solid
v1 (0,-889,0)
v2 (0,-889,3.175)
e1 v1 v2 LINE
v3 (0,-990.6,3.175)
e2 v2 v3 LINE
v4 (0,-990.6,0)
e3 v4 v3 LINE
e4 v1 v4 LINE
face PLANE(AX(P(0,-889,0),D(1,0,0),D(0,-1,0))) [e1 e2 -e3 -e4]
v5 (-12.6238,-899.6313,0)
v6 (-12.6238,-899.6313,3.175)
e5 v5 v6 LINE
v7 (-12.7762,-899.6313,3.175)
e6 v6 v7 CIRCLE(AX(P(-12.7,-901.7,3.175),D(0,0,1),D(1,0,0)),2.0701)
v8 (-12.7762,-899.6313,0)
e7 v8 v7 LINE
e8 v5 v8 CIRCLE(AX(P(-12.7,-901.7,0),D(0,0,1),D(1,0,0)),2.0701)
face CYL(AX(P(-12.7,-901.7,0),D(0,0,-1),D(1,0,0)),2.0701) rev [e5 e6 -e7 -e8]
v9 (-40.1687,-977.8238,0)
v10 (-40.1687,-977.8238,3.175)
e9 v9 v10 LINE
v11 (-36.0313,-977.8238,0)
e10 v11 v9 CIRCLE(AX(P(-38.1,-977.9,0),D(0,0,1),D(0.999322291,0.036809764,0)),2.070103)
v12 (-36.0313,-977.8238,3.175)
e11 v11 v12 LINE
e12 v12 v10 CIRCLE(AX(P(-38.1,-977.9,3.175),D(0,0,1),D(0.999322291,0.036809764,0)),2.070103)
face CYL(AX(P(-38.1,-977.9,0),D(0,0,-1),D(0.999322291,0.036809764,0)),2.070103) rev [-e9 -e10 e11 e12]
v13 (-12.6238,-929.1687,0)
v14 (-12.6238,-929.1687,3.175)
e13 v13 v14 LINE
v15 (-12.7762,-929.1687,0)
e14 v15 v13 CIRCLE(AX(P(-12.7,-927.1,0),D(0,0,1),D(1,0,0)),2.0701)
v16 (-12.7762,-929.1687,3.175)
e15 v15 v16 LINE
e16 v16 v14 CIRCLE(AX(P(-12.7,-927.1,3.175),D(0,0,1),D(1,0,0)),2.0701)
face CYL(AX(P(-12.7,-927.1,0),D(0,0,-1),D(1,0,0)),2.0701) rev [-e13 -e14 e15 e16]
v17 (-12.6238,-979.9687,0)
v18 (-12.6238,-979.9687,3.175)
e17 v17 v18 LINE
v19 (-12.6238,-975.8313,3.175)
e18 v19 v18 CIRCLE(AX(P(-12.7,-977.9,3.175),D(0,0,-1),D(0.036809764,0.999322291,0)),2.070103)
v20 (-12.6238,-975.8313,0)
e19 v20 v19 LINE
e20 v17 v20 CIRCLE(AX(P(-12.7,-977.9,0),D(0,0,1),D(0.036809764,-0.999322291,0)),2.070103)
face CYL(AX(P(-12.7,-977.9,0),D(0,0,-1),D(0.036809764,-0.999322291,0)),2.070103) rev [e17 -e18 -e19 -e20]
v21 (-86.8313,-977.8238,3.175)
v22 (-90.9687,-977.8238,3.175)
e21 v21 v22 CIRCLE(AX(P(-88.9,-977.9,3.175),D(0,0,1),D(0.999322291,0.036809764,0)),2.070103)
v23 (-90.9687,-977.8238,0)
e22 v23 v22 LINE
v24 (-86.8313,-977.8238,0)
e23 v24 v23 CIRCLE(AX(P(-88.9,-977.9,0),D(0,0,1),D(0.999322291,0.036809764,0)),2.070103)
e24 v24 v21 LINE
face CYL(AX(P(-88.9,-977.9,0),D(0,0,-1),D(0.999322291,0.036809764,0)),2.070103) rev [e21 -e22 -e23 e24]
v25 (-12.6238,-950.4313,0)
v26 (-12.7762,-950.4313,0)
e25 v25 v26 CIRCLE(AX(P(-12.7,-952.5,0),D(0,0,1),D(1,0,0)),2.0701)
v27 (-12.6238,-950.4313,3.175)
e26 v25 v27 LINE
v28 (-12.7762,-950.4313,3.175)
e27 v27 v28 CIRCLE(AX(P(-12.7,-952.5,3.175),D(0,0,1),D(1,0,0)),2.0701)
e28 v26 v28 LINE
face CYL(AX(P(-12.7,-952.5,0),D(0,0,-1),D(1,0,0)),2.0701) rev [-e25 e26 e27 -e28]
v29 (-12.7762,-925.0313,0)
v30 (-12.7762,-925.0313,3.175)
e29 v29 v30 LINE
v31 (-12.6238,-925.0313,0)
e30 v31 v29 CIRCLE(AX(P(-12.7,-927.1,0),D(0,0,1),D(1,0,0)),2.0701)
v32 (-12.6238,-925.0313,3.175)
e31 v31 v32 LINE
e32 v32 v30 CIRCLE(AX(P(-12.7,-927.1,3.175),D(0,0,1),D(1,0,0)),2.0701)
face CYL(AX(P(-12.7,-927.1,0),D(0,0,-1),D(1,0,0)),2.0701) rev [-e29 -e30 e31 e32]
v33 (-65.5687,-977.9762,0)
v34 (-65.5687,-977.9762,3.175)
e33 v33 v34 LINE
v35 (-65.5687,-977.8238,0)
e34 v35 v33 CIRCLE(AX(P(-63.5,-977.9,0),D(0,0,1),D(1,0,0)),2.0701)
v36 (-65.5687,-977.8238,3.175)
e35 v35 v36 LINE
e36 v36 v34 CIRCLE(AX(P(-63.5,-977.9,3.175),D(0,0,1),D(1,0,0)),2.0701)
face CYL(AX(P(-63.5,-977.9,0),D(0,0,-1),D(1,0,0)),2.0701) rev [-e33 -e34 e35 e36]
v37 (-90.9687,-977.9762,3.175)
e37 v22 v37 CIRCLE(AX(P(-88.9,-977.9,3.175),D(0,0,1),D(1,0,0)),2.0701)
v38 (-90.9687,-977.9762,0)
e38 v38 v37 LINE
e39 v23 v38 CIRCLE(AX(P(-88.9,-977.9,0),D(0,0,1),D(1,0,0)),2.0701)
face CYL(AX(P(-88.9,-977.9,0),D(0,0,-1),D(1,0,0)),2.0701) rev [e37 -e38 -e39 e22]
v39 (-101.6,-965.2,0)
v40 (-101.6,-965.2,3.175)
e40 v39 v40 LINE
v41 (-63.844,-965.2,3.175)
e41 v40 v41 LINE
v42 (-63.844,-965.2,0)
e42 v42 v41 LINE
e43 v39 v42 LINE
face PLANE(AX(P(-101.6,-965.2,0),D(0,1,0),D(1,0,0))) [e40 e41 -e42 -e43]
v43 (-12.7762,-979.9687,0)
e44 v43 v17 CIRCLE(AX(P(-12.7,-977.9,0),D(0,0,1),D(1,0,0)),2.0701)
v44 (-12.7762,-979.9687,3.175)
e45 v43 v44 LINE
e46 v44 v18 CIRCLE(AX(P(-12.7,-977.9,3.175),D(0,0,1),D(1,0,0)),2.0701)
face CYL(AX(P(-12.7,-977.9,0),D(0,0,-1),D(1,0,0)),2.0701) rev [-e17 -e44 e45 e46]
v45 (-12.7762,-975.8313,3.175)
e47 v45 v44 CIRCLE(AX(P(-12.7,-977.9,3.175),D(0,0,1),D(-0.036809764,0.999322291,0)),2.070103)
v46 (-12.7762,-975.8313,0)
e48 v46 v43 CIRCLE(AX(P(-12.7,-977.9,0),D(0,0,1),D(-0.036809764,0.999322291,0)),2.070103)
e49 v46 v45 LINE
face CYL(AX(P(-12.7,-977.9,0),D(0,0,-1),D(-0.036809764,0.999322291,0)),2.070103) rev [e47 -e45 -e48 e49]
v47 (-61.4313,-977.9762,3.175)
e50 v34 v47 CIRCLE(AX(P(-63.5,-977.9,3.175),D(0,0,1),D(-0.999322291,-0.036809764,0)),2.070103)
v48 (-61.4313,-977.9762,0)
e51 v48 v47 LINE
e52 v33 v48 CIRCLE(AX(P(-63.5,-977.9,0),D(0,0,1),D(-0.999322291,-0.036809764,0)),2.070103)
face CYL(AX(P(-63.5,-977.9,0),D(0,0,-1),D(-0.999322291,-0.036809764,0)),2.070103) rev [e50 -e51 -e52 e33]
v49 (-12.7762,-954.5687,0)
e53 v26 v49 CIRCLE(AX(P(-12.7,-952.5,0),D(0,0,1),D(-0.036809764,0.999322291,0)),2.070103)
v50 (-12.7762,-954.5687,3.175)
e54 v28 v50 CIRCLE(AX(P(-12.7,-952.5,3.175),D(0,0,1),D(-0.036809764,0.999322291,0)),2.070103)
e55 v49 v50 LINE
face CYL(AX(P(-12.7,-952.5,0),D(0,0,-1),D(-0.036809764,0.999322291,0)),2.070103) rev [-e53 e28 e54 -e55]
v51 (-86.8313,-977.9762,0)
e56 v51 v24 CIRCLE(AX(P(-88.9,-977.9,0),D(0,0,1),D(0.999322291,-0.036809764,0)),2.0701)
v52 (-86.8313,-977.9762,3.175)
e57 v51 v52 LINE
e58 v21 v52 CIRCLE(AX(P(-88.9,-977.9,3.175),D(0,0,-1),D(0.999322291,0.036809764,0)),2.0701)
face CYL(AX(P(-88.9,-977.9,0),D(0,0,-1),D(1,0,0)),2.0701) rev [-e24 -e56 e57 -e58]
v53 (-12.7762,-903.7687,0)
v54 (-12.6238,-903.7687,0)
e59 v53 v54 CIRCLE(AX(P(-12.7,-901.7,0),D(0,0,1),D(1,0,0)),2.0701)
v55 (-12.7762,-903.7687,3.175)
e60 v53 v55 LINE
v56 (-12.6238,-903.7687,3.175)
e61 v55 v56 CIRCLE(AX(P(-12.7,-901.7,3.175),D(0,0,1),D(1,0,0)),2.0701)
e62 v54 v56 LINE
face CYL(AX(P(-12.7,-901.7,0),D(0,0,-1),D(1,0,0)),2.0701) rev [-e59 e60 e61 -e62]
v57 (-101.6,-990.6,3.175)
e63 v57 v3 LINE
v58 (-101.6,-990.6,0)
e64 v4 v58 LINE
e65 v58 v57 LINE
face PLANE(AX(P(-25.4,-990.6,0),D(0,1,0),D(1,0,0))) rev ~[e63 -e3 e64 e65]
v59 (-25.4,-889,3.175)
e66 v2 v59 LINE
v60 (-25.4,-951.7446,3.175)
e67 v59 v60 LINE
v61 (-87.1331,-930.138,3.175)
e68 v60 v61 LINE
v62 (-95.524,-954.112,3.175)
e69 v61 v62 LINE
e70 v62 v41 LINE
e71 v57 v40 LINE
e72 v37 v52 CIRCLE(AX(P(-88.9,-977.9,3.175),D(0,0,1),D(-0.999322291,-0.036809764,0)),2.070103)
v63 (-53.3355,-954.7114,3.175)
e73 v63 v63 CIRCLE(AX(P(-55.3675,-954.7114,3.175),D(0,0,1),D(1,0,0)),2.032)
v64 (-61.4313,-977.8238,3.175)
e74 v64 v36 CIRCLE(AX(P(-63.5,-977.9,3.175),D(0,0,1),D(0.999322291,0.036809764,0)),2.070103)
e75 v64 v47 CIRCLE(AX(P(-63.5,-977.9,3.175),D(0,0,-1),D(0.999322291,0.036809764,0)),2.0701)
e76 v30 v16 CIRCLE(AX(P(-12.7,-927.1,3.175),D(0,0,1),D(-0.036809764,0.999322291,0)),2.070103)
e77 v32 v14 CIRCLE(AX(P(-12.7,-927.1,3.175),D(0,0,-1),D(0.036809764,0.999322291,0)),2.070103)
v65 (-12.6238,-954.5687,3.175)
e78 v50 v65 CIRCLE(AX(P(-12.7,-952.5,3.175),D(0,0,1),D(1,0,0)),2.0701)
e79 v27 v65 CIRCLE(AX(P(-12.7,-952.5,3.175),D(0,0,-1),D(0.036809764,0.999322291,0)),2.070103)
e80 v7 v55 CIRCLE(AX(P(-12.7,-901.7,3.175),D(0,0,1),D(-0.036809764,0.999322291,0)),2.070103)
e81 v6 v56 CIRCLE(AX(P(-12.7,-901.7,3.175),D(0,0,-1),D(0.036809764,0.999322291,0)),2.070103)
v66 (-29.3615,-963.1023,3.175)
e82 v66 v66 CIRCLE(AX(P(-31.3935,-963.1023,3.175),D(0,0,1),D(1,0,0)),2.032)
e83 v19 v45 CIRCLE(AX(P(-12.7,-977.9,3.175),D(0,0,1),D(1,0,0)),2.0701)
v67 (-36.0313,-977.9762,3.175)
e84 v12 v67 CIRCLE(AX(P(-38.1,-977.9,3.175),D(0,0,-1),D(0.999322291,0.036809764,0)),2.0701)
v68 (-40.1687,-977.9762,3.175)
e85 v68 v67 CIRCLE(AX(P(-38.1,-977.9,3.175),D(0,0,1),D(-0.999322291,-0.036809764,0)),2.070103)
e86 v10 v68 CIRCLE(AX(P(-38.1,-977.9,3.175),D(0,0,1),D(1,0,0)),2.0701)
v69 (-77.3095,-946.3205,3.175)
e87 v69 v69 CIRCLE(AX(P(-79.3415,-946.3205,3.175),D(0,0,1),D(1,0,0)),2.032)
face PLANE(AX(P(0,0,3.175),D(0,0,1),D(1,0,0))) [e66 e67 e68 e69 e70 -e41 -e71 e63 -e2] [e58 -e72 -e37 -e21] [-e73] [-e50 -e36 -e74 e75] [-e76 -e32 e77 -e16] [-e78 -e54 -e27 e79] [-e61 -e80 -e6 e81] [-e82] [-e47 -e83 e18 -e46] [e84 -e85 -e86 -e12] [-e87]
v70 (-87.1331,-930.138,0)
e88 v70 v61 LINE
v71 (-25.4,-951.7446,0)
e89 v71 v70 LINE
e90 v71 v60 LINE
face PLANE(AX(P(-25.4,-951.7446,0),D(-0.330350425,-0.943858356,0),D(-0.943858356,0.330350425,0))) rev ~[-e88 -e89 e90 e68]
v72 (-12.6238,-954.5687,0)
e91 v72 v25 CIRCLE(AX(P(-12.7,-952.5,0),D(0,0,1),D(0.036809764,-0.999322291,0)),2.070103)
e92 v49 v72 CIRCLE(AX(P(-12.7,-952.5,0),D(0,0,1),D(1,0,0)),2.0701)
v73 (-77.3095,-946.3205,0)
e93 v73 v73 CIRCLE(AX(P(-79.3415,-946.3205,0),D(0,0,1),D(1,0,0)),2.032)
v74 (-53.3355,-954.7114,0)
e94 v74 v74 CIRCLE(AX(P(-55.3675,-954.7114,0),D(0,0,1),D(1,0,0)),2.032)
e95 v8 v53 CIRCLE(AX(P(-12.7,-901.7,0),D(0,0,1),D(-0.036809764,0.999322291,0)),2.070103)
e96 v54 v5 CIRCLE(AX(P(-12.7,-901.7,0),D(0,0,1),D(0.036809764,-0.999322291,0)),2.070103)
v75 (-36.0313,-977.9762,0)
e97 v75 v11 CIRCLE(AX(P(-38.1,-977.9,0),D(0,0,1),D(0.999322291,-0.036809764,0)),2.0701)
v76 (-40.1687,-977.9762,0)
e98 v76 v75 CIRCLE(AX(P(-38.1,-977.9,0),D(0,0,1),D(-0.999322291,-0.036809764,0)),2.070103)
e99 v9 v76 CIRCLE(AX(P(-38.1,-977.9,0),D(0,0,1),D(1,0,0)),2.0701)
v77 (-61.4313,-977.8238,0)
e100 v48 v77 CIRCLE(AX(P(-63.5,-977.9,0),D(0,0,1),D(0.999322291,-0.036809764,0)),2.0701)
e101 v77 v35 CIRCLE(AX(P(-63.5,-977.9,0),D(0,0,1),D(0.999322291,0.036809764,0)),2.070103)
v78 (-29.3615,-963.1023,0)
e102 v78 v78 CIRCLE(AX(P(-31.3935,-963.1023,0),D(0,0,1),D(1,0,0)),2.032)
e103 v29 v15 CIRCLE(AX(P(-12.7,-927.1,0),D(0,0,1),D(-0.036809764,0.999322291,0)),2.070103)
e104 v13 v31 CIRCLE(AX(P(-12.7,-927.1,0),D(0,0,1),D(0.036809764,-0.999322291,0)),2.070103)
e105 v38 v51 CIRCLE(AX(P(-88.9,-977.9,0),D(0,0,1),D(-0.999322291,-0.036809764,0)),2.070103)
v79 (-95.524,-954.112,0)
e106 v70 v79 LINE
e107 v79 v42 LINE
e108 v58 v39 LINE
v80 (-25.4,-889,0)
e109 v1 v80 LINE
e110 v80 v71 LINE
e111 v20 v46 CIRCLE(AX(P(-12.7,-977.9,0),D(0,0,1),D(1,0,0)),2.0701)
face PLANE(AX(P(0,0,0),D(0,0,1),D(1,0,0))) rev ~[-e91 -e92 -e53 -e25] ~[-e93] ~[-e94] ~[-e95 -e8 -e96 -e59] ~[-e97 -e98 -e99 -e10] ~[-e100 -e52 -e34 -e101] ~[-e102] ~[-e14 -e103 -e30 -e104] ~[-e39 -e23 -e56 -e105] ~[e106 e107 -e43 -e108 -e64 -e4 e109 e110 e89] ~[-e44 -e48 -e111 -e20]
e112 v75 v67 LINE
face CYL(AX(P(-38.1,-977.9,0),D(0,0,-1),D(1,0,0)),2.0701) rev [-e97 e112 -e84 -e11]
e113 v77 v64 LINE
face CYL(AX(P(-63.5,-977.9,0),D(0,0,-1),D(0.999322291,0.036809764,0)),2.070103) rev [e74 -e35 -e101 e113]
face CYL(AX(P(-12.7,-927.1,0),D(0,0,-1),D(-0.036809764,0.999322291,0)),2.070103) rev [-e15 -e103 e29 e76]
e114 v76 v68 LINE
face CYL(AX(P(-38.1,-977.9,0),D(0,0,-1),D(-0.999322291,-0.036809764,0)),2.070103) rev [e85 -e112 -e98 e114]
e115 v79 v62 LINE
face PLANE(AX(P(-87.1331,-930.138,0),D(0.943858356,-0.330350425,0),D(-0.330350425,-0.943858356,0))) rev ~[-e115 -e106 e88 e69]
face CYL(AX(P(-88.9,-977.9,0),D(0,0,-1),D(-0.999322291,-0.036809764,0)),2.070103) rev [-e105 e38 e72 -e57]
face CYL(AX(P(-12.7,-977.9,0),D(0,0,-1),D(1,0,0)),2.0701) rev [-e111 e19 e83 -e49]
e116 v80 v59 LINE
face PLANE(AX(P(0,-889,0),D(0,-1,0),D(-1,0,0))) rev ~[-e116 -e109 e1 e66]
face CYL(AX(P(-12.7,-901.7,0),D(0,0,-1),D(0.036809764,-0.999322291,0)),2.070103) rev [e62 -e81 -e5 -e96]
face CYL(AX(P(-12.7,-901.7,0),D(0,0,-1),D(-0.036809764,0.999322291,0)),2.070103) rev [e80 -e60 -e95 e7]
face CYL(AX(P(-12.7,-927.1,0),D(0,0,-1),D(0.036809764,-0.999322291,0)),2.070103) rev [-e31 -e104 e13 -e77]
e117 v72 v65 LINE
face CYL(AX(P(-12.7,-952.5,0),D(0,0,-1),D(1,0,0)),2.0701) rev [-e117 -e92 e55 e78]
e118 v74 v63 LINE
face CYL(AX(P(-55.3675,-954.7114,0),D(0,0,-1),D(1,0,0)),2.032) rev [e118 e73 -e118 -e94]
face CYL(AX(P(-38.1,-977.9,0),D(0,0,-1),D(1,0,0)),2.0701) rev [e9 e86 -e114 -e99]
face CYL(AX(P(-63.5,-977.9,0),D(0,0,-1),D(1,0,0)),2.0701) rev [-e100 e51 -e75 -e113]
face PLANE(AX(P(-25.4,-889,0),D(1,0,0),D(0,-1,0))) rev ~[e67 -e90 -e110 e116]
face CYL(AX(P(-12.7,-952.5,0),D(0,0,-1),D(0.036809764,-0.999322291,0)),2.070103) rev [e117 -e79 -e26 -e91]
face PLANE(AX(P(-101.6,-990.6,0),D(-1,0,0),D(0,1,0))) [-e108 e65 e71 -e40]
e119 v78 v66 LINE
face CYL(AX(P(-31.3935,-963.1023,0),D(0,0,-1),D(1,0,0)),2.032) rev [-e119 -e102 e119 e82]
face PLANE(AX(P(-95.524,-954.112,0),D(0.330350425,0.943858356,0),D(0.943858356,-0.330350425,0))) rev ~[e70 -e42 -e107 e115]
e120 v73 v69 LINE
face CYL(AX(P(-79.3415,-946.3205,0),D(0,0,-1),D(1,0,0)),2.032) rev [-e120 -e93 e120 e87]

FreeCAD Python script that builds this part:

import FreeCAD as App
import Part
import Sketcher
from FreeCAD import Vector
Q = App.Units.Quantity

doc = App.newDocument("Part")
body = doc.addObject("PartDesign::Body", "Body")

sketch1 = body.newObject("Sketcher::SketchObject", "Sketch")
sketch1.AttachmentSupport = (doc.getObject("XY_Plane"), [""])
sketch1.MapMode = "FlatFace"
sketch1.addGeometry([
    Part.LineSegment(Vector(-87.1, -930.1, 0), Vector(-95.5, -954.1, 0)),
    Part.LineSegment(Vector(-95.5, -954.1, 0), Vector(-63.8, -965.2, 0)),
    Part.LineSegment(Vector(-63.8, -965.2, 0), Vector(-101.6, -965.2, 0)),
    Part.LineSegment(Vector(-101.6, -965.2, 0), Vector(-101.6, -990.6, 0)),
    Part.LineSegment(Vector(-101.6, -990.6, 0), Vector(0, -990.6, 0)),
    Part.LineSegment(Vector(0, -990.6, 0), Vector(0, -889, 0)),
    Part.LineSegment(Vector(0, -889, 0), Vector(-25.4, -889, 0)),
    Part.LineSegment(Vector(-25.4, -889, 0), Vector(-25.4, -951.7, 0)),
    Part.LineSegment(Vector(-25.4, -951.7, 0), Vector(-87.1, -930.1, 0)),
    Part.Circle(Vector(-79.3, -946.3, 0), Vector(0, 0, 1), 2),
    Part.Circle(Vector(-55.4, -954.7, 0), Vector(0, 0, 1), 2),
    Part.Circle(Vector(-31.4, -963.1, 0), Vector(0, 0, 1), 2),
    Part.Circle(Vector(-12.7, -901.7, 0), Vector(0, 0, 1), 2.1),
    Part.Circle(Vector(-12.7, -977.9, 0), Vector(0, 0, 1), 2.1),
    Part.Circle(Vector(-12.7, -952.5, 0), Vector(0, 0, 1), 2.1),
    Part.Circle(Vector(-12.7, -927.1, 0), Vector(0, 0, 1), 2.1),
    Part.Circle(Vector(-38.1, -977.9, 0), Vector(0, 0, 1), 2.1),
    Part.Circle(Vector(-88.9, -977.9, 0), Vector(0, 0, 1), 2.1),
    Part.Circle(Vector(-63.5, -977.9, 0), Vector(0, 0, 1), 2.1),
], False)
sketch1.addConstraint([
    Sketcher.Constraint("Coincident", 0, 2, 1, 1),
    Sketcher.Constraint("Coincident", 1, 2, 2, 1),
    Sketcher.Constraint("Coincident", 2, 2, 3, 1),
    Sketcher.Constraint("Coincident", 3, 2, 4, 1),
    Sketcher.Constraint("Coincident", 4, 2, 5, 1),
    Sketcher.Constraint("Coincident", 5, 2, 6, 1),
    Sketcher.Constraint("Coincident", 6, 2, 7, 1),
    Sketcher.Constraint("Coincident", 7, 2, 8, 1),
    Sketcher.Constraint("Coincident", 8, 2, 0, 1),
    Sketcher.Constraint("Horizontal", 2),
    Sketcher.Constraint("Vertical", 3),
    Sketcher.Constraint("Horizontal", 4),
    Sketcher.Constraint("Vertical", 5),
    Sketcher.Constraint("Horizontal", 6),
    Sketcher.Constraint("Vertical", 7),
    Sketcher.Constraint("Equal", 9, 10),
    Sketcher.Constraint("Equal", 10, 11),
    Sketcher.Constraint("Equal", 12, 13),
    Sketcher.Constraint("Equal", 13, 14),
    Sketcher.Constraint("Equal", 14, 15),
    Sketcher.Constraint("Equal", 15, 16),
    Sketcher.Constraint("Equal", 16, 17),
    Sketcher.Constraint("Equal", 17, 18),
    Sketcher.Constraint("PointOnObject", 4, 2, -2),
    Sketcher.Constraint("Perpendicular", 0, 1),
    Sketcher.Constraint("Parallel", 1, 8),
    Sketcher.Constraint("Horizontal", 13, 3, 16, 3),
    Sketcher.Constraint("Horizontal", 16, 3, 17, 3),
    Sketcher.Constraint("Horizontal", 17, 3, 18, 3),
    Sketcher.Constraint("Vertical", 12, 3, 13, 3),
    Sketcher.Constraint("Vertical", 13, 3, 14, 3),
    Sketcher.Constraint("Vertical", 14, 3, 15, 3),
    Sketcher.Constraint("Equal", 6, 3),
    Sketcher.Constraint("Equal", 4, 5),
    Sketcher.Constraint("DistanceX", 6, 2, 6, 1, Q("1 in")),
    Sketcher.Constraint("Distance", 0, Q("1 in")),
    Sketcher.Constraint("DistanceY", 13, 3, 14, 3, Q("1 in")),
    Sketcher.Constraint("DistanceY", 15, 3, 12, 3, Q("1 in")),
    Sketcher.Constraint("DistanceY", 14, 3, 15, 3, Q("1 in")),
    Sketcher.Constraint("DistanceX", 16, 3, 13, 3, Q("1 in")),
    Sketcher.Constraint("DistanceX", 18, 3, 16, 3, Q("1 in")),
    Sketcher.Constraint("DistanceX", 17, 3, 18, 3, Q("1 in")),
    Sketcher.Constraint("Diameter", 9, Q("0.16 in")),
    Sketcher.Constraint("DistanceX", 4, 1, 4, 2, Q("4 in")),
    Sketcher.Constraint("Diameter", 12, Q("0.163 in")),
    Sketcher.Constraint("DistanceY", 1, 2, -1, 1, Q("38 in")),
    Sketcher.Constraint("DistanceX", 12, 3, -1, 1, Q("0.5 in")),
    Sketcher.Constraint("DistanceY", 12, 3, -1, 1, Q("35.5 in")),
    Sketcher.Constraint("Angle", 0, Q("-109.29 deg")),
    Sketcher.Constraint("Distance", 8, Q("2.575 in")),
    Sketcher.Constraint("DistanceX", 2, 2, 2, 1, Q("37.756 mm")),
    Sketcher.Constraint("DistanceY", 11, 3, 9, 3, Q("0.6607 in")),
    Sketcher.Constraint("DistanceX", 0, 2, 9, 3, Q("0.6371 in")),
    Sketcher.Constraint("DistanceY", 10, 3, 0, 2, Q("0.0236 in")),
    Sketcher.Constraint("DistanceY", 9, 3, 8, 2, Q("0.6371 in")),
    Sketcher.Constraint("DistanceX", 10, 3, -1, 1, Q("55.3675 mm")),
    Sketcher.Constraint("DistanceX", 11, 3, -1, 1, Q("31.3935 mm")),
])
pad1 = body.newObject("PartDesign::Pad", "Pad")
pad1.Profile = sketch1
pad1.Length = Q("0.125 in")

doc.recompute()
